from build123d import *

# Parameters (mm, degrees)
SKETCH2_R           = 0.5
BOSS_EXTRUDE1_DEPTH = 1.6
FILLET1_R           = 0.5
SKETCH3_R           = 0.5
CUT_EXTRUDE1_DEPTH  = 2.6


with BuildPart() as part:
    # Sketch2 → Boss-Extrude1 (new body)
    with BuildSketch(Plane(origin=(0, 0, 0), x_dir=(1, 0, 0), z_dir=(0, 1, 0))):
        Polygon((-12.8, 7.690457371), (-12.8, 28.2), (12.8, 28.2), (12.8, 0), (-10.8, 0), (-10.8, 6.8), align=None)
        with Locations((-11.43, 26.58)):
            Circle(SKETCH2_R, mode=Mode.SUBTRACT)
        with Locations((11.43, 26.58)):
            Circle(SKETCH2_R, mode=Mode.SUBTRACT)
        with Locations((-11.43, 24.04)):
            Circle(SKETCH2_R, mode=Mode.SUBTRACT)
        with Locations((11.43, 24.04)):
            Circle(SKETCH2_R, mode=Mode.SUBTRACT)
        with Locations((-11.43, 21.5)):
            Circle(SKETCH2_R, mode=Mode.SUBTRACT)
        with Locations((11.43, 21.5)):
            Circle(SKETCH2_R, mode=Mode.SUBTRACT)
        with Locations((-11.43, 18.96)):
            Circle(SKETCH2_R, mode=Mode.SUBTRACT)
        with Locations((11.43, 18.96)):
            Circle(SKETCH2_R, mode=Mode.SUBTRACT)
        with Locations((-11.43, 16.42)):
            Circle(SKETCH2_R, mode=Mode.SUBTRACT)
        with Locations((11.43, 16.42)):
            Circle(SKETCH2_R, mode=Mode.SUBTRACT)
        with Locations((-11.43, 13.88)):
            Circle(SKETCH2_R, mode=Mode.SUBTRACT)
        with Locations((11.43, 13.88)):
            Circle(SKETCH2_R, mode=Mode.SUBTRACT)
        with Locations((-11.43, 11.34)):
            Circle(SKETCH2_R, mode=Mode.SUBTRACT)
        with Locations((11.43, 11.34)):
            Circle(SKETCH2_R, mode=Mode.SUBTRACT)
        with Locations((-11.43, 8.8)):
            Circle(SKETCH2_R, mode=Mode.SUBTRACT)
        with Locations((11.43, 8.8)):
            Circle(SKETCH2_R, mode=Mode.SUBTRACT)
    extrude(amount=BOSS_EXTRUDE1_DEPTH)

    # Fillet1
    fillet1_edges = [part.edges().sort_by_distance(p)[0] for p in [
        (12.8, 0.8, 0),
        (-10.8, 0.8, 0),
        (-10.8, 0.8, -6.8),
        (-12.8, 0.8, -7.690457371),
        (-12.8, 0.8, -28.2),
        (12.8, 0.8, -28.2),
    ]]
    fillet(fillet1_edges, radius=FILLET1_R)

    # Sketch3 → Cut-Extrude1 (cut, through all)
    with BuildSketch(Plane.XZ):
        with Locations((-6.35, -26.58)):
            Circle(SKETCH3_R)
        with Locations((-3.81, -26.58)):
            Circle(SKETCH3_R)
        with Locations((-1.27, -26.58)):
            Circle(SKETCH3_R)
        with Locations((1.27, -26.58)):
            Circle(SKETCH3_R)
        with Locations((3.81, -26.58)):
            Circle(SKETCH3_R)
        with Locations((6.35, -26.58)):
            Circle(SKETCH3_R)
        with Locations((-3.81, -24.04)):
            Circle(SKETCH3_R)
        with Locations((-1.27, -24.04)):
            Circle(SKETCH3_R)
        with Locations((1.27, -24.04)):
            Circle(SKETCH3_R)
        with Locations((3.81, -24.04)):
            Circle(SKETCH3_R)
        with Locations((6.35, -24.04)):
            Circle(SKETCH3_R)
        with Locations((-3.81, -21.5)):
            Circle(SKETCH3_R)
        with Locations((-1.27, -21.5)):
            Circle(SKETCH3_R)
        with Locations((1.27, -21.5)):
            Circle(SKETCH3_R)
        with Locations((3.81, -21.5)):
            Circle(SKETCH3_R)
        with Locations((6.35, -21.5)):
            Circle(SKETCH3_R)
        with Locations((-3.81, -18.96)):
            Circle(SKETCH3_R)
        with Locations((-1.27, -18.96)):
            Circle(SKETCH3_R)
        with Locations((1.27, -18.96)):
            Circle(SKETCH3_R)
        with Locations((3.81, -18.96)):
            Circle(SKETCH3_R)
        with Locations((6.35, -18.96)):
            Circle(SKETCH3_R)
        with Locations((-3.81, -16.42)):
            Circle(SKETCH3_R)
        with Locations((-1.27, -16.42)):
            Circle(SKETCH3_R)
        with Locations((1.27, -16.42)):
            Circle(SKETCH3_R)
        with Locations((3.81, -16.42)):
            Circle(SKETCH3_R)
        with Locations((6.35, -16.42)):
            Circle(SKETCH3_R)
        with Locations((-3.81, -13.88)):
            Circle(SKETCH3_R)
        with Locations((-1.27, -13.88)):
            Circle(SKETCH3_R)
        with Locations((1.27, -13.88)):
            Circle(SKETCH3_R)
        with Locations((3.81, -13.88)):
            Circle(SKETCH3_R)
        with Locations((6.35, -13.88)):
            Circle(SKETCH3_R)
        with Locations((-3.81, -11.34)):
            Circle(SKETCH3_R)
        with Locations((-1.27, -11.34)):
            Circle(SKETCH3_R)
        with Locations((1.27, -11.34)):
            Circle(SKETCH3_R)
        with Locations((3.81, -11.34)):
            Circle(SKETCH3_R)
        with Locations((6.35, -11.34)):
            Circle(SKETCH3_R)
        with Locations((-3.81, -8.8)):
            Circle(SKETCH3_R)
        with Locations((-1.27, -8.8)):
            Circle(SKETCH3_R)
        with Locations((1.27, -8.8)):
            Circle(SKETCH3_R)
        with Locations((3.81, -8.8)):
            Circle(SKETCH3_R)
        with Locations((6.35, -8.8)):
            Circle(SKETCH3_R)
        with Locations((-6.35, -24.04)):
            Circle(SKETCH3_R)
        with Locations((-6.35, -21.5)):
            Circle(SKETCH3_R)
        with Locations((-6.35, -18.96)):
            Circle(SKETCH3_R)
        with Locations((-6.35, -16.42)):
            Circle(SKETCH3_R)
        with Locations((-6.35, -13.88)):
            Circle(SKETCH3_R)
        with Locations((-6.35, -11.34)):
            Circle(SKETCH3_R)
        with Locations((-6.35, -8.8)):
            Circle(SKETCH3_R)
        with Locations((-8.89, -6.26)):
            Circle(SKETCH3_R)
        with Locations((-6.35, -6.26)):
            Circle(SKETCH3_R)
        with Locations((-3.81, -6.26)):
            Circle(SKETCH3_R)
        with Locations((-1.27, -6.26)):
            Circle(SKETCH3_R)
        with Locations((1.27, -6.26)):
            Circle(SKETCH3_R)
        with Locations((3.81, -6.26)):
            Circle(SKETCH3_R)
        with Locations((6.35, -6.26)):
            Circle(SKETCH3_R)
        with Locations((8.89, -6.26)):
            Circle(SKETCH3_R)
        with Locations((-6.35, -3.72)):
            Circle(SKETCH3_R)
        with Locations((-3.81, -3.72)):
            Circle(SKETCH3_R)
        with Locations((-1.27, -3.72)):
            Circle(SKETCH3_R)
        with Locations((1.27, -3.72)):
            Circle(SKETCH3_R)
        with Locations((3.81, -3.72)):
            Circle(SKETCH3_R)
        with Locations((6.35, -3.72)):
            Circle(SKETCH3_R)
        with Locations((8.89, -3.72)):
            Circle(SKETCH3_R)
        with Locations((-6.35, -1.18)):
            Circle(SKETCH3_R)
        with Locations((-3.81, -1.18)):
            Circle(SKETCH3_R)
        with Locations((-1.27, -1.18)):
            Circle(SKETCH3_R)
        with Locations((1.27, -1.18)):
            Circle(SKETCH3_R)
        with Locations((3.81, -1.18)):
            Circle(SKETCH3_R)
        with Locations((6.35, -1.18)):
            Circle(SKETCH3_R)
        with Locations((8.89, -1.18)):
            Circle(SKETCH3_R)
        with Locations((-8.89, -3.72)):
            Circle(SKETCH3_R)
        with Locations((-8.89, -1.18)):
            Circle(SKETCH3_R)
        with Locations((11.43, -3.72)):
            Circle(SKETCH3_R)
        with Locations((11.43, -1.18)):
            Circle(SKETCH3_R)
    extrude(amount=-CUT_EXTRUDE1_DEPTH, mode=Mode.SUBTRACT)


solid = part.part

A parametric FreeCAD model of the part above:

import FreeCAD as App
import Part
import Sketcher
from FreeCAD import Vector
Q = App.Units.Quantity


def edges_at(feature, points):
    """Names of the edges that pass closest to the given points."""
    edges = feature.Shape.Edges
    near = lambda p: min(range(len(edges)), key=lambda i: edges[i].distToShape(Part.Vertex(*p))[0])
    return sorted({f"Edge{near(p) + 1}" for p in points})

doc = App.newDocument("Part")
body = doc.addObject("PartDesign::Body", "Body")

sketch1 = body.newObject("Sketcher::SketchObject", "Sketch")
sketch1.AttachmentSupport = (doc.getObject("XZ_Plane"), [""])
sketch1.MapMode = "FlatFace"
sketch1.addGeometry(Part.LineSegment(Vector(-12.8, -28.2, 0), Vector(-12.8, -7.7, 0)), False)
sketch1.addGeometry(Part.LineSegment(Vector(-12.8, -7.7, 0), Vector(-10.8, -6.8, 0)), False)
sketch1.addGeometry(Part.LineSegment(Vector(-10.8, -6.8, 0), Vector(-10.8, 0, 0)), False)
sketch1.addGeometry(Part.LineSegment(Vector(-10.8, 0, 0), Vector(12.8, 0, 0)), False)
sketch1.addGeometry(Part.LineSegment(Vector(12.8, 0, 0), Vector(12.8, -28.2, 0)), False)
sketch1.addGeometry(Part.LineSegment(Vector(12.8, -28.2, 0), Vector(-12.8, -28.2, 0)), False)
sketch1.addGeometry(Part.Circle(Vector(11.4, -8.8, 0), Vector(0, 0, 1), 0.5), False)
sketch1.addGeometry(Part.Circle(Vector(11.4, -11.3, 0), Vector(0, 0, 1), 0.5), False)
sketch1.addGeometry(Part.Circle(Vector(11.4, -13.9, 0), Vector(0, 0, 1), 0.5), False)
sketch1.addGeometry(Part.Circle(Vector(11.4, -16.4, 0), Vector(0, 0, 1), 0.5), False)
sketch1.addGeometry(Part.Circle(Vector(-11.4, -8.8, 0), Vector(0, 0, 1), 0.5), False)
sketch1.addGeometry(Part.Circle(Vector(-11.4, -11.3, 0), Vector(0, 0, 1), 0.5), False)
sketch1.addGeometry(Part.Circle(Vector(-11.4, -13.9, 0), Vector(0, 0, 1), 0.5), False)
sketch1.addGeometry(Part.Circle(Vector(-11.4, -16.4, 0), Vector(0, 0, 1), 0.5), False)
sketch1.addGeometry(Part.Circle(Vector(11.4, -19, 0), Vector(0, 0, 1), 0.5), False)
sketch1.addGeometry(Part.Circle(Vector(11.4, -21.5, 0), Vector(0, 0, 1), 0.5), False)
sketch1.addGeometry(Part.Circle(Vector(11.4, -24, 0), Vector(0, 0, 1), 0.5), False)
sketch1.addGeometry(Part.Circle(Vector(11.4, -26.6, 0), Vector(0, 0, 1), 0.5), False)
sketch1.addGeometry(Part.Circle(Vector(-11.4, -19, 0), Vector(0, 0, 1), 0.5), False)
sketch1.addGeometry(Part.Circle(Vector(-11.4, -21.5, 0), Vector(0, 0, 1), 0.5), False)
sketch1.addGeometry(Part.Circle(Vector(-11.4, -24, 0), Vector(0, 0, 1), 0.5), False)
sketch1.addGeometry(Part.Circle(Vector(-11.4, -26.6, 0), Vector(0, 0, 1), 0.5), False)
sketch1.addConstraint(Sketcher.Constraint("Coincident", 0, 2, 1, 1))
sketch1.addConstraint(Sketcher.Constraint("Coincident", 1, 2, 2, 1))
sketch1.addConstraint(Sketcher.Constraint("Coincident", 2, 2, 3, 1))
sketch1.addConstraint(Sketcher.Constraint("Coincident", 3, 2, 4, 1))
sketch1.addConstraint(Sketcher.Constraint("Coincident", 4, 2, 5, 1))
sketch1.addConstraint(Sketcher.Constraint("Coincident", 5, 2, 0, 1))
sketch1.addConstraint(Sketcher.Constraint("Vertical", 0))
sketch1.addConstraint(Sketcher.Constraint("Vertical", 2))
sketch1.addConstraint(Sketcher.Constraint("Horizontal", 3))
sketch1.addConstraint(Sketcher.Constraint("Vertical", 4))
sketch1.addConstraint(Sketcher.Constraint("Horizontal", 5))
sketch1.addConstraint(Sketcher.Constraint("Equal", 6, 7))
sketch1.addConstraint(Sketcher.Constraint("Equal", 7, 8))
sketch1.addConstraint(Sketcher.Constraint("Equal", 8, 9))
sketch1.addConstraint(Sketcher.Constraint("Equal", 9, 10))
sketch1.addConstraint(Sketcher.Constraint("Equal", 10, 11))
sketch1.addConstraint(Sketcher.Constraint("Equal", 11, 12))
sketch1.addConstraint(Sketcher.Constraint("Equal", 12, 13))
sketch1.addConstraint(Sketcher.Constraint("Equal", 13, 14))
sketch1.addConstraint(Sketcher.Constraint("Equal", 14, 15))
sketch1.addConstraint(Sketcher.Constraint("Equal", 15, 16))
sketch1.addConstraint(Sketcher.Constraint("Equal", 16, 17))
sketch1.addConstraint(Sketcher.Constraint("Equal", 17, 18))
sketch1.addConstraint(Sketcher.Constraint("Equal", 18, 19))
sketch1.addConstraint(Sketcher.Constraint("Equal", 19, 20))
sketch1.addConstraint(Sketcher.Constraint("Equal", 20, 21))
sketch1.addConstraint(Sketcher.Constraint("Symmetric", 6, 3, 10, 3, -2))
sketch1.addConstraint(Sketcher.Constraint("Symmetric", 7, 3, 11, 3, -2))
sketch1.addConstraint(Sketcher.Constraint("Symmetric", 8, 3, 12, 3, -2))
sketch1.addConstraint(Sketcher.Constraint("Symmetric", 9, 3, 13, 3, -2))
sketch1.addConstraint(Sketcher.Constraint("Symmetric", 14, 3, 18, 3, -2))
sketch1.addConstraint(Sketcher.Constraint("Symmetric", 15, 3, 19, 3, -2))
sketch1.addConstraint(Sketcher.Constraint("Symmetric", 16, 3, 20, 3, -2))
sketch1.addConstraint(Sketcher.Constraint("Symmetric", 17, 3, 21, 3, -2))
sketch1.addConstraint(Sketcher.Constraint("PointOnObject", 2, 2, -1))
sketch1.addConstraint(Sketcher.Constraint("Vertical", 6, 3, 7, 3))
sketch1.addConstraint(Sketcher.Constraint("Vertical", 7, 3, 8, 3))
sketch1.addConstraint(Sketcher.Constraint("Vertical", 8, 3, 9, 3))
sketch1.addConstraint(Sketcher.Constraint("Vertical", 9, 3, 14, 3))
sketch1.addConstraint(Sketcher.Constraint("Vertical", 14, 3, 15, 3))
sketch1.addConstraint(Sketcher.Constraint("Vertical", 15, 3, 16, 3))
sketch1.addConstraint(Sketcher.Constraint("Vertical", 16, 3, 17, 3))
sketch1.addConstraint(Sketcher.Constraint("Diameter", 6, Q("1 mm")))
sketch1.addConstraint(Sketcher.Constraint("Angle", 1, Q("24 deg")))
sketch1.addConstraint(Sketcher.Constraint("DistanceX", 3, 1, 3, 2, Q("23.6 mm")))
sketch1.addConstraint(Sketcher.Constraint("DistanceX", 5, 2, 5, 1, Q("25.6 mm")))
sketch1.addConstraint(Sketcher.Constraint("DistanceY", 2, 1, 2, 2, Q("6.8 mm")))
sketch1.addConstraint(Sketcher.Constraint("DistanceY", 4, 2, 4, 1, Q("28.2 mm")))
sketch1.addConstraint(Sketcher.Constraint("DistanceY", 10, 3, 1, 2, Q("2 mm")))
sketch1.addConstraint(Sketcher.Constraint("DistanceY", 15, 3, -1, 1, Q("21.5 mm")))
sketch1.addConstraint(Sketcher.Constraint("DistanceX", 0, 2, -1, 1, Q("12.8 mm")))
sketch1.addConstraint(Sketcher.Constraint("DistanceY", 16, 3, 7, 3, Q("12.7 mm")))
sketch1.addConstraint(Sketcher.Constraint("DistanceY", 17, 3, 8, 3, Q("12.7 mm")))
sketch1.addConstraint(Sketcher.Constraint("DistanceX", -1, 1, 6, 3, Q("11.43 mm")))
sketch1.addConstraint(Sketcher.Constraint("DistanceY", 7, 3, -1, 1, Q("11.34 mm")))
sketch1.addConstraint(Sketcher.Constraint("DistanceY", 8, 3, -1, 1, Q("13.88 mm")))
sketch1.addConstraint(Sketcher.Constraint("DistanceY", 9, 3, -1, 1, Q("16.42 mm")))
sketch1.addConstraint(Sketcher.Constraint("DistanceY", 14, 3, -1, 1, Q("18.96 mm")))
pad1 = body.newObject("PartDesign::Pad", "Pad")
pad1.Profile = sketch1
pad1.Length = 1.6
pad1.Reversed = True
doc.recompute()

fillet = body.newObject("PartDesign::Fillet", "Fillet")
fillet.Base = (pad1, edges_at(pad1, [
    (12.8, 0.8, 0),
    (-10.8, 0.8, 0),
    (-10.8, 0.8, -6.8),
    (-12.8, 0.8, -7.69),
    (-12.8, 0.8, -28.2),
    (12.8, 0.8, -28.2),
]))
fillet.Radius = 0.5

sketch2 = body.newObject("Sketcher::SketchObject", "Sketch001")
sketch2.AttachmentSupport = (doc.getObject("XZ_Plane"), [""])
sketch2.MapMode = "FlatFace"
sketch2.addGeometry(Part.Circle(Vector(-6.3, -26.6, 0), Vector(0, 0, 1), 0.5), False)
sketch2.addGeometry(Part.Circle(Vector(-3.8, -26.6, 0), Vector(0, 0, 1), 0.5), False)
sketch2.addGeometry(Part.Circle(Vector(-1.3, -26.6, 0), Vector(0, 0, 1), 0.5), False)
sketch2.addGeometry(Part.Circle(Vector(1.3, -26.6, 0), Vector(0, 0, 1), 0.5), False)
sketch2.addGeometry(Part.Circle(Vector(3.8, -26.6, 0), Vector(0, 0, 1), 0.5), False)
sketch2.addGeometry(Part.Circle(Vector(6.3, -26.6, 0), Vector(0, 0, 1), 0.5), False)
sketch2.addGeometry(Part.Circle(Vector(-3.8, -24, 0), Vector(0, 0, 1), 0.5), False)
sketch2.addGeometry(Part.Circle(Vector(-1.3, -24, 0), Vector(0, 0, 1), 0.5), False)
sketch2.addGeometry(Part.Circle(Vector(1.3, -24, 0), Vector(0, 0, 1), 0.5), False)
sketch2.addGeometry(Part.Circle(Vector(3.8, -24, 0), Vector(0, 0, 1), 0.5), False)
sketch2.addGeometry(Part.Circle(Vector(6.3, -24, 0), Vector(0, 0, 1), 0.5), False)
sketch2.addGeometry(Part.Circle(Vector(-3.8, -21.5, 0), Vector(0, 0, 1), 0.5), False)
sketch2.addGeometry(Part.Circle(Vector(-1.3, -21.5, 0), Vector(0, 0, 1), 0.5), False)
sketch2.addGeometry(Part.Circle(Vector(1.3, -21.5, 0), Vector(0, 0, 1), 0.5), False)
sketch2.addGeometry(Part.Circle(Vector(3.8, -21.5, 0), Vector(0, 0, 1), 0.5), False)
sketch2.addGeometry(Part.Circle(Vector(6.3, -21.5, 0), Vector(0, 0, 1), 0.5), False)
sketch2.addGeometry(Part.Circle(Vector(-3.8, -19, 0), Vector(0, 0, 1), 0.5), False)
sketch2.addGeometry(Part.Circle(Vector(-1.3, -19, 0), Vector(0, 0, 1), 0.5), False)
sketch2.addGeometry(Part.Circle(Vector(1.3, -19, 0), Vector(0, 0, 1), 0.5), False)
sketch2.addGeometry(Part.Circle(Vector(3.8, -19, 0), Vector(0, 0, 1), 0.5), False)
sketch2.addGeometry(Part.Circle(Vector(6.3, -19, 0), Vector(0, 0, 1), 0.5), False)
sketch2.addGeometry(Part.Circle(Vector(-3.8, -16.4, 0), Vector(0, 0, 1), 0.5), False)
sketch2.addGeometry(Part.Circle(Vector(-1.3, -16.4, 0), Vector(0, 0, 1), 0.5), False)
sketch2.addGeometry(Part.Circle(Vector(1.3, -16.4, 0), Vector(0, 0, 1), 0.5), False)
sketch2.addGeometry(Part.Circle(Vector(3.8, -16.4, 0), Vector(0, 0, 1), 0.5), False)
sketch2.addGeometry(Part.Circle(Vector(6.3, -16.4, 0), Vector(0, 0, 1), 0.5), False)
sketch2.addGeometry(Part.Circle(Vector(-3.8, -13.9, 0), Vector(0, 0, 1), 0.5), False)
sketch2.addGeometry(Part.Circle(Vector(-1.3, -13.9, 0), Vector(0, 0, 1), 0.5), False)
sketch2.addGeometry(Part.Circle(Vector(1.3, -13.9, 0), Vector(0, 0, 1), 0.5), False)
sketch2.addGeometry(Part.Circle(Vector(3.8, -13.9, 0), Vector(0, 0, 1), 0.5), False)
sketch2.addGeometry(Part.Circle(Vector(6.3, -13.9, 0), Vector(0, 0, 1), 0.5), False)
sketch2.addGeometry(Part.Circle(Vector(-3.8, -11.3, 0), Vector(0, 0, 1), 0.5), False)
sketch2.addGeometry(Part.Circle(Vector(-1.3, -11.3, 0), Vector(0, 0, 1), 0.5), False)
sketch2.addGeometry(Part.Circle(Vector(1.3, -11.3, 0), Vector(0, 0, 1), 0.5), False)
sketch2.addGeometry(Part.Circle(Vector(3.8, -11.3, 0), Vector(0, 0, 1), 0.5), False)
sketch2.addGeometry(Part.Circle(Vector(6.3, -11.3, 0), Vector(0, 0, 1), 0.5), False)
sketch2.addGeometry(Part.Circle(Vector(-3.8, -8.8, 0), Vector(0, 0, 1), 0.5), False)
sketch2.addGeometry(Part.Circle(Vector(-1.3, -8.8, 0), Vector(0, 0, 1), 0.5), False)
sketch2.addGeometry(Part.Circle(Vector(1.3, -8.8, 0), Vector(0, 0, 1), 0.5), False)
sketch2.addGeometry(Part.Circle(Vector(3.8, -8.8, 0), Vector(0, 0, 1), 0.5), False)
sketch2.addGeometry(Part.Circle(Vector(6.3, -8.8, 0), Vector(0, 0, 1), 0.5), False)
sketch2.addGeometry(Part.Circle(Vector(-6.3, -24, 0), Vector(0, 0, 1), 0.5), False)
sketch2.addGeometry(Part.Circle(Vector(-6.3, -21.5, 0), Vector(0, 0, 1), 0.5), False)
sketch2.addGeometry(Part.Circle(Vector(-6.3, -19, 0), Vector(0, 0, 1), 0.5), False)
sketch2.addGeometry(Part.Circle(Vector(-6.3, -16.4, 0), Vector(0, 0, 1), 0.5), False)
sketch2.addGeometry(Part.Circle(Vector(-6.3, -13.9, 0), Vector(0, 0, 1), 0.5), False)
sketch2.addGeometry(Part.Circle(Vector(-6.3, -11.3, 0), Vector(0, 0, 1), 0.5), False)
sketch2.addGeometry(Part.Circle(Vector(-6.3, -8.8, 0), Vector(0, 0, 1), 0.5), False)
sketch2.addGeometry(Part.Circle(Vector(-8.9, -6.3, 0), Vector(0, 0, 1), 0.5), False)
sketch2.addGeometry(Part.Circle(Vector(-6.3, -6.3, 0), Vector(0, 0, 1), 0.5), False)
sketch2.addGeometry(Part.Circle(Vector(-3.8, -6.3, 0), Vector(0, 0, 1), 0.5), False)
sketch2.addGeometry(Part.Circle(Vector(-1.3, -6.3, 0), Vector(0, 0, 1), 0.5), False)
sketch2.addGeometry(Part.Circle(Vector(1.3, -6.3, 0), Vector(0, 0, 1), 0.5), False)
sketch2.addGeometry(Part.Circle(Vector(3.8, -6.3, 0), Vector(0, 0, 1), 0.5), False)
sketch2.addGeometry(Part.Circle(Vector(6.3, -6.3, 0), Vector(0, 0, 1), 0.5), False)
sketch2.addGeometry(Part.Circle(Vector(8.9, -6.3, 0), Vector(0, 0, 1), 0.5), False)
sketch2.addGeometry(Part.Circle(Vector(-6.3, -3.7, 0), Vector(0, 0, 1), 0.5), False)
sketch2.addGeometry(Part.Circle(Vector(-3.8, -3.7, 0), Vector(0, 0, 1), 0.5), False)
sketch2.addGeometry(Part.Circle(Vector(-1.3, -3.7, 0), Vector(0, 0, 1), 0.5), False)
sketch2.addGeometry(Part.Circle(Vector(1.3, -3.7, 0), Vector(0, 0, 1), 0.5), False)
sketch2.addGeometry(Part.Circle(Vector(3.8, -3.7, 0), Vector(0, 0, 1), 0.5), False)
sketch2.addGeometry(Part.Circle(Vector(6.3, -3.7, 0), Vector(0, 0, 1), 0.5), False)
sketch2.addGeometry(Part.Circle(Vector(8.9, -3.7, 0), Vector(0, 0, 1), 0.5), False)
sketch2.addGeometry(Part.Circle(Vector(-6.3, -1.2, 0), Vector(0, 0, 1), 0.5), False)
sketch2.addGeometry(Part.Circle(Vector(-3.8, -1.2, 0), Vector(0, 0, 1), 0.5), False)
sketch2.addGeometry(Part.Circle(Vector(-1.3, -1.2, 0), Vector(0, 0, 1), 0.5), False)
sketch2.addGeometry(Part.Circle(Vector(1.3, -1.2, 0), Vector(0, 0, 1), 0.5), False)
sketch2.addGeometry(Part.Circle(Vector(3.8, -1.2, 0), Vector(0, 0, 1), 0.5), False)
sketch2.addGeometry(Part.Circle(Vector(6.3, -1.2, 0), Vector(0, 0, 1), 0.5), False)
sketch2.addGeometry(Part.Circle(Vector(8.9, -1.2, 0), Vector(0, 0, 1), 0.5), False)
sketch2.addGeometry(Part.Circle(Vector(-8.9, -3.7, 0), Vector(0, 0, 1), 0.5), False)
sketch2.addGeometry(Part.Circle(Vector(-8.9, -1.2, 0), Vector(0, 0, 1), 0.5), False)
sketch2.addGeometry(Part.Circle(Vector(11.4, -3.7, 0), Vector(0, 0, 1), 0.5), False)
sketch2.addGeometry(Part.Circle(Vector(11.4, -1.2, 0), Vector(0, 0, 1), 0.5), False)
sketch2.addConstraint(Sketcher.Constraint("Equal", 0, 1))
sketch2.addConstraint(Sketcher.Constraint("Equal", 1, 2))
sketch2.addConstraint(Sketcher.Constraint("Equal", 2, 3))
sketch2.addConstraint(Sketcher.Constraint("Equal", 3, 4))
sketch2.addConstraint(Sketcher.Constraint("Equal", 4, 5))
sketch2.addConstraint(Sketcher.Constraint("Equal", 5, 6))
sketch2.addConstraint(Sketcher.Constraint("Equal", 6, 7))
sketch2.addConstraint(Sketcher.Constraint("Equal", 7, 8))
sketch2.addConstraint(Sketcher.Constraint("Equal", 8, 9))
sketch2.addConstraint(Sketcher.Constraint("Equal", 9, 10))
sketch2.addConstraint(Sketcher.Constraint("Equal", 10, 11))
sketch2.addConstraint(Sketcher.Constraint("Equal", 11, 12))
sketch2.addConstraint(Sketcher.Constraint("Equal", 12, 13))
sketch2.addConstraint(Sketcher.Constraint("Equal", 13, 14))
sketch2.addConstraint(Sketcher.Constraint("Equal", 14, 15))
sketch2.addConstraint(Sketcher.Constraint("Equal", 15, 16))
sketch2.addConstraint(Sketcher.Constraint("Equal", 16, 17))
sketch2.addConstraint(Sketcher.Constraint("Equal", 17, 18))
sketch2.addConstraint(Sketcher.Constraint("Equal", 18, 19))
sketch2.addConstraint(Sketcher.Constraint("Equal", 19, 20))
sketch2.addConstraint(Sketcher.Constraint("Equal", 20, 21))
sketch2.addConstraint(Sketcher.Constraint("Equal", 21, 22))
sketch2.addConstraint(Sketcher.Constraint("Equal", 22, 23))
sketch2.addConstraint(Sketcher.Constraint("Equal", 23, 24))
sketch2.addConstraint(Sketcher.Constraint("Equal", 24, 25))
sketch2.addConstraint(Sketcher.Constraint("Equal", 25, 26))
sketch2.addConstraint(Sketcher.Constraint("Equal", 26, 27))
sketch2.addConstraint(Sketcher.Constraint("Equal", 27, 28))
sketch2.addConstraint(Sketcher.Constraint("Equal", 28, 29))
sketch2.addConstraint(Sketcher.Constraint("Equal", 29, 30))
sketch2.addConstraint(Sketcher.Constraint("Equal", 30, 31))
sketch2.addConstraint(Sketcher.Constraint("Equal", 31, 32))
sketch2.addConstraint(Sketcher.Constraint("Equal", 32, 33))
sketch2.addConstraint(Sketcher.Constraint("Equal", 33, 34))
sketch2.addConstraint(Sketcher.Constraint("Equal", 34, 35))
sketch2.addConstraint(Sketcher.Constraint("Equal", 35, 36))
sketch2.addConstraint(Sketcher.Constraint("Equal", 36, 37))
sketch2.addConstraint(Sketcher.Constraint("Equal", 37, 38))
sketch2.addConstraint(Sketcher.Constraint("Equal", 38, 39))
sketch2.addConstraint(Sketcher.Constraint("Equal", 39, 40))
sketch2.addConstraint(Sketcher.Constraint("Equal", 40, 41))
sketch2.addConstraint(Sketcher.Constraint("Equal", 41, 42))
sketch2.addConstraint(Sketcher.Constraint("Equal", 42, 43))
sketch2.addConstraint(Sketcher.Constraint("Equal", 43, 44))
sketch2.addConstraint(Sketcher.Constraint("Equal", 44, 45))
sketch2.addConstraint(Sketcher.Constraint("Equal", 45, 46))
sketch2.addConstraint(Sketcher.Constraint("Equal", 46, 47))
sketch2.addConstraint(Sketcher.Constraint("Equal", 47, 48))
sketch2.addConstraint(Sketcher.Constraint("Equal", 48, 49))
sketch2.addConstraint(Sketcher.Constraint("Equal", 49, 50))
sketch2.addConstraint(Sketcher.Constraint("Equal", 50, 51))
sketch2.addConstraint(Sketcher.Constraint("Equal", 51, 52))
sketch2.addConstraint(Sketcher.Constraint("Equal", 52, 53))
sketch2.addConstraint(Sketcher.Constraint("Equal", 53, 54))
sketch2.addConstraint(Sketcher.Constraint("Equal", 54, 55))
sketch2.addConstraint(Sketcher.Constraint("Equal", 55, 56))
sketch2.addConstraint(Sketcher.Constraint("Equal", 56, 57))
sketch2.addConstraint(Sketcher.Constraint("Equal", 57, 58))
sketch2.addConstraint(Sketcher.Constraint("Equal", 58, 59))
sketch2.addConstraint(Sketcher.Constraint("Equal", 59, 60))
sketch2.addConstraint(Sketcher.Constraint("Equal", 60, 61))
sketch2.addConstraint(Sketcher.Constraint("Equal", 61, 62))
sketch2.addConstraint(Sketcher.Constraint("Equal", 62, 63))
sketch2.addConstraint(Sketcher.Constraint("Equal", 63, 64))
sketch2.addConstraint(Sketcher.Constraint("Equal", 64, 65))
sketch2.addConstraint(Sketcher.Constraint("Equal", 65, 66))
sketch2.addConstraint(Sketcher.Constraint("Equal", 66, 67))
sketch2.addConstraint(Sketcher.Constraint("Equal", 67, 68))
sketch2.addConstraint(Sketcher.Constraint("Equal", 68, 69))
sketch2.addConstraint(Sketcher.Constraint("Equal", 69, 70))
sketch2.addConstraint(Sketcher.Constraint("Equal", 70, 71))
sketch2.addConstraint(Sketcher.Constraint("Equal", 71, 72))
sketch2.addConstraint(Sketcher.Constraint("Equal", 72, 73))
sketch2.addConstraint(Sketcher.Constraint("Symmetric", 2, 3, 3, 3, -2))
sketch2.addConstraint(Sketcher.Constraint("Symmetric", 1, 3, 4, 3, -2))
sketch2.addConstraint(Sketcher.Constraint("Symmetric", 0, 3, 5, 3, -2))
sketch2.addConstraint(Sketcher.Constraint("Symmetric", 7, 3, 8, 3, -2))
sketch2.addConstraint(Sketcher.Constraint("Symmetric", 6, 3, 9, 3, -2))
sketch2.addConstraint(Sketcher.Constraint("Symmetric", 12, 3, 13, 3, -2))
sketch2.addConstraint(Sketcher.Constraint("Symmetric", 11, 3, 14, 3, -2))
sketch2.addConstraint(Sketcher.Constraint("Symmetric", 17, 3, 18, 3, -2))
sketch2.addConstraint(Sketcher.Constraint("Symmetric", 16, 3, 19, 3, -2))
sketch2.addConstraint(Sketcher.Constraint("Symmetric", 22, 3, 23, 3, -2))
sketch2.addConstraint(Sketcher.Constraint("Symmetric", 21, 3, 24, 3, -2))
sketch2.addConstraint(Sketcher.Constraint("Symmetric", 27, 3, 28, 3, -2))
sketch2.addConstraint(Sketcher.Constraint("Symmetric", 26, 3, 29, 3, -2))
sketch2.addConstraint(Sketcher.Constraint("Symmetric", 32, 3, 33, 3, -2))
sketch2.addConstraint(Sketcher.Constraint("Symmetric", 31, 3, 34, 3, -2))
sketch2.addConstraint(Sketcher.Constraint("Symmetric", 37, 3, 38, 3, -2))
sketch2.addConstraint(Sketcher.Constraint("Symmetric", 36, 3, 39, 3, -2))
sketch2.addConstraint(Sketcher.Constraint("Symmetric", 10, 3, 41, 3, -2))
sketch2.addConstraint(Sketcher.Constraint("Symmetric", 15, 3, 42, 3, -2))
sketch2.addConstraint(Sketcher.Constraint("Symmetric", 20, 3, 43, 3, -2))
sketch2.addConstraint(Sketcher.Constraint("Symmetric", 25, 3, 44, 3, -2))
sketch2.addConstraint(Sketcher.Constraint("Symmetric", 30, 3, 45, 3, -2))
sketch2.addConstraint(Sketcher.Constraint("Symmetric", 35, 3, 46, 3, -2))
sketch2.addConstraint(Sketcher.Constraint("Symmetric", 40, 3, 47, 3, -2))
sketch2.addConstraint(Sketcher.Constraint("Symmetric", 51, 3, 52, 3, -2))
sketch2.addConstraint(Sketcher.Constraint("Symmetric", 50, 3, 53, 3, -2))
sketch2.addConstraint(Sketcher.Constraint("Symmetric", 49, 3, 54, 3, -2))
sketch2.addConstraint(Sketcher.Constraint("Symmetric", 48, 3, 55, 3, -2))
sketch2.addConstraint(Sketcher.Constraint("Symmetric", 58, 3, 59, 3, -2))
sketch2.addConstraint(Sketcher.Constraint("Symmetric", 57, 3, 60, 3, -2))
sketch2.addConstraint(Sketcher.Constraint("Symmetric", 56, 3, 61, 3, -2))
sketch2.addConstraint(Sketcher.Constraint("Symmetric", 65, 3, 66, 3, -2))
sketch2.addConstraint(Sketcher.Constraint("Symmetric", 64, 3, 67, 3, -2))
sketch2.addConstraint(Sketcher.Constraint("Symmetric", 63, 3, 68, 3, -2))
sketch2.addConstraint(Sketcher.Constraint("Symmetric", 62, 3, 70, 3, -2))
sketch2.addConstraint(Sketcher.Constraint("Symmetric", 69, 3, 71, 3, -2))
sketch2.addConstraint(Sketcher.Constraint("Horizontal", 0, 3, 1, 3))
sketch2.addConstraint(Sketcher.Constraint("Horizontal", 1, 3, 2, 3))
sketch2.addConstraint(Sketcher.Constraint("Horizontal", 6, 3, 7, 3))
sketch2.addConstraint(Sketcher.Constraint("Horizontal", 9, 3, 10, 3))
sketch2.addConstraint(Sketcher.Constraint("Horizontal", 11, 3, 12, 3))
sketch2.addConstraint(Sketcher.Constraint("Horizontal", 14, 3, 15, 3))
sketch2.addConstraint(Sketcher.Constraint("Horizontal", 16, 3, 17, 3))
sketch2.addConstraint(Sketcher.Constraint("Horizontal", 19, 3, 20, 3))
sketch2.addConstraint(Sketcher.Constraint("Horizontal", 21, 3, 22, 3))
sketch2.addConstraint(Sketcher.Constraint("Horizontal", 24, 3, 25, 3))
sketch2.addConstraint(Sketcher.Constraint("Horizontal", 26, 3, 27, 3))
sketch2.addConstraint(Sketcher.Constraint("Horizontal", 29, 3, 30, 3))
sketch2.addConstraint(Sketcher.Constraint("Horizontal", 31, 3, 32, 3))
sketch2.addConstraint(Sketcher.Constraint("Horizontal", 34, 3, 35, 3))
sketch2.addConstraint(Sketcher.Constraint("Horizontal", 36, 3, 37, 3))
sketch2.addConstraint(Sketcher.Constraint("Horizontal", 39, 3, 40, 3))
sketch2.addConstraint(Sketcher.Constraint("Horizontal", 48, 3, 49, 3))
sketch2.addConstraint(Sketcher.Constraint("Horizontal", 49, 3, 50, 3))
sketch2.addConstraint(Sketcher.Constraint("Horizontal", 50, 3, 51, 3))
sketch2.addConstraint(Sketcher.Constraint("Horizontal", 56, 3, 57, 3))
sketch2.addConstraint(Sketcher.Constraint("Horizontal", 57, 3, 58, 3))
sketch2.addConstraint(Sketcher.Constraint("Horizontal", 61, 3, 62, 3))
sketch2.addConstraint(Sketcher.Constraint("Horizontal", 63, 3, 64, 3))
sketch2.addConstraint(Sketcher.Constraint("Horizontal", 64, 3, 65, 3))
sketch2.addConstraint(Sketcher.Constraint("Horizontal", 68, 3, 69, 3))
sketch2.addConstraint(Sketcher.Constraint("Horizontal", 70, 3, 72, 3))
sketch2.addConstraint(Sketcher.Constraint("Horizontal", 71, 3, 73, 3))
sketch2.addConstraint(Sketcher.Constraint("Vertical", 1, 3, 6, 3))
sketch2.addConstraint(Sketcher.Constraint("Vertical", 2, 3, 7, 3))
sketch2.addConstraint(Sketcher.Constraint("Vertical", 5, 3, 10, 3))
sketch2.addConstraint(Sketcher.Constraint("Vertical", 6, 3, 11, 3))
sketch2.addConstraint(Sketcher.Constraint("Vertical", 7, 3, 12, 3))
sketch2.addConstraint(Sketcher.Constraint("Vertical", 10, 3, 15, 3))
sketch2.addConstraint(Sketcher.Constraint("Vertical", 11, 3, 16, 3))
sketch2.addConstraint(Sketcher.Constraint("Vertical", 12, 3, 17, 3))
sketch2.addConstraint(Sketcher.Constraint("Vertical", 15, 3, 20, 3))
sketch2.addConstraint(Sketcher.Constraint("Vertical", 16, 3, 21, 3))
sketch2.addConstraint(Sketcher.Constraint("Vertical", 17, 3, 22, 3))
sketch2.addConstraint(Sketcher.Constraint("Vertical", 20, 3, 25, 3))
sketch2.addConstraint(Sketcher.Constraint("Vertical", 21, 3, 26, 3))
sketch2.addConstraint(Sketcher.Constraint("Vertical", 22, 3, 27, 3))
sketch2.addConstraint(Sketcher.Constraint("Vertical", 25, 3, 30, 3))
sketch2.addConstraint(Sketcher.Constraint("Vertical", 26, 3, 31, 3))
sketch2.addConstraint(Sketcher.Constraint("Vertical", 27, 3, 32, 3))
sketch2.addConstraint(Sketcher.Constraint("Vertical", 30, 3, 35, 3))
sketch2.addConstraint(Sketcher.Constraint("Vertical", 31, 3, 36, 3))
sketch2.addConstraint(Sketcher.Constraint("Vertical", 32, 3, 37, 3))
sketch2.addConstraint(Sketcher.Constraint("Vertical", 35, 3, 40, 3))
sketch2.addConstraint(Sketcher.Constraint("Vertical", 47, 3, 49, 3))
sketch2.addConstraint(Sketcher.Constraint("Vertical", 36, 3, 50, 3))
sketch2.addConstraint(Sketcher.Constraint("Vertical", 37, 3, 51, 3))
sketch2.addConstraint(Sketcher.Constraint("Vertical", 49, 3, 56, 3))
sketch2.addConstraint(Sketcher.Constraint("Vertical", 50, 3, 57, 3))
sketch2.addConstraint(Sketcher.Constraint("Vertical", 51, 3, 58, 3))
sketch2.addConstraint(Sketcher.Constraint("Vertical", 55, 3, 62, 3))
sketch2.addConstraint(Sketcher.Constraint("Vertical", 56, 3, 63, 3))
sketch2.addConstraint(Sketcher.Constraint("Vertical", 57, 3, 64, 3))
sketch2.addConstraint(Sketcher.Constraint("Vertical", 58, 3, 65, 3))
sketch2.addConstraint(Sketcher.Constraint("Vertical", 62, 3, 69, 3))
sketch2.addConstraint(Sketcher.Constraint("Vertical", 72, 3, 73, 3))
sketch2.addConstraint(Sketcher.Constraint("Diameter", 0, Q("1 mm")))
sketch2.addConstraint(Sketcher.Constraint("DistanceY", 11, 3, -1, 1, Q("21.5 mm")))
sketch2.addConstraint(Sketcher.Constraint("DistanceY", 36, 3, -1, 1, Q("8.8 mm")))
sketch2.addConstraint(Sketcher.Constraint("DistanceX", 0, 3, -1, 1, Q("6.35 mm")))
sketch2.addConstraint(Sketcher.Constraint("DistanceY", 0, 3, -1, 1, Q("26.58 mm")))
sketch2.addConstraint(Sketcher.Constraint("DistanceX", 1, 3, -1, 1, Q("3.81 mm")))
sketch2.addConstraint(Sketcher.Constraint("DistanceX", 2, 3, -1, 1, Q("1.27 mm")))
sketch2.addConstraint(Sketcher.Constraint("DistanceY", 6, 3, -1, 1, Q("24.04 mm")))
sketch2.addConstraint(Sketcher.Constraint("DistanceY", 16, 3, -1, 1, Q("18.96 mm")))
sketch2.addConstraint(Sketcher.Constraint("DistanceY", 21, 3, -1, 1, Q("16.42 mm")))
sketch2.addConstraint(Sketcher.Constraint("DistanceY", 26, 3, -1, 1, Q("13.88 mm")))
sketch2.addConstraint(Sketcher.Constraint("DistanceY", 31, 3, -1, 1, Q("11.34 mm")))
sketch2.addConstraint(Sketcher.Constraint("DistanceX", 48, 3, -1, 1, Q("8.89 mm")))
sketch2.addConstraint(Sketcher.Constraint("DistanceY", 48, 3, -1, 1, Q("6.26 mm")))
sketch2.addConstraint(Sketcher.Constraint("DistanceY", 56, 3, -1, 1, Q("3.72 mm")))
sketch2.addConstraint(Sketcher.Constraint("DistanceY", 63, 3, -1, 1, Q("1.18 mm")))
sketch2.addConstraint(Sketcher.Constraint("DistanceX", -1, 1, 72, 3, Q("11.43 mm")))
pocket1 = body.newObject("PartDesign::Pocket", "Pocket")
pocket1.Profile = sketch2
pocket1.Type = "ThroughAll"

doc.recompute()
